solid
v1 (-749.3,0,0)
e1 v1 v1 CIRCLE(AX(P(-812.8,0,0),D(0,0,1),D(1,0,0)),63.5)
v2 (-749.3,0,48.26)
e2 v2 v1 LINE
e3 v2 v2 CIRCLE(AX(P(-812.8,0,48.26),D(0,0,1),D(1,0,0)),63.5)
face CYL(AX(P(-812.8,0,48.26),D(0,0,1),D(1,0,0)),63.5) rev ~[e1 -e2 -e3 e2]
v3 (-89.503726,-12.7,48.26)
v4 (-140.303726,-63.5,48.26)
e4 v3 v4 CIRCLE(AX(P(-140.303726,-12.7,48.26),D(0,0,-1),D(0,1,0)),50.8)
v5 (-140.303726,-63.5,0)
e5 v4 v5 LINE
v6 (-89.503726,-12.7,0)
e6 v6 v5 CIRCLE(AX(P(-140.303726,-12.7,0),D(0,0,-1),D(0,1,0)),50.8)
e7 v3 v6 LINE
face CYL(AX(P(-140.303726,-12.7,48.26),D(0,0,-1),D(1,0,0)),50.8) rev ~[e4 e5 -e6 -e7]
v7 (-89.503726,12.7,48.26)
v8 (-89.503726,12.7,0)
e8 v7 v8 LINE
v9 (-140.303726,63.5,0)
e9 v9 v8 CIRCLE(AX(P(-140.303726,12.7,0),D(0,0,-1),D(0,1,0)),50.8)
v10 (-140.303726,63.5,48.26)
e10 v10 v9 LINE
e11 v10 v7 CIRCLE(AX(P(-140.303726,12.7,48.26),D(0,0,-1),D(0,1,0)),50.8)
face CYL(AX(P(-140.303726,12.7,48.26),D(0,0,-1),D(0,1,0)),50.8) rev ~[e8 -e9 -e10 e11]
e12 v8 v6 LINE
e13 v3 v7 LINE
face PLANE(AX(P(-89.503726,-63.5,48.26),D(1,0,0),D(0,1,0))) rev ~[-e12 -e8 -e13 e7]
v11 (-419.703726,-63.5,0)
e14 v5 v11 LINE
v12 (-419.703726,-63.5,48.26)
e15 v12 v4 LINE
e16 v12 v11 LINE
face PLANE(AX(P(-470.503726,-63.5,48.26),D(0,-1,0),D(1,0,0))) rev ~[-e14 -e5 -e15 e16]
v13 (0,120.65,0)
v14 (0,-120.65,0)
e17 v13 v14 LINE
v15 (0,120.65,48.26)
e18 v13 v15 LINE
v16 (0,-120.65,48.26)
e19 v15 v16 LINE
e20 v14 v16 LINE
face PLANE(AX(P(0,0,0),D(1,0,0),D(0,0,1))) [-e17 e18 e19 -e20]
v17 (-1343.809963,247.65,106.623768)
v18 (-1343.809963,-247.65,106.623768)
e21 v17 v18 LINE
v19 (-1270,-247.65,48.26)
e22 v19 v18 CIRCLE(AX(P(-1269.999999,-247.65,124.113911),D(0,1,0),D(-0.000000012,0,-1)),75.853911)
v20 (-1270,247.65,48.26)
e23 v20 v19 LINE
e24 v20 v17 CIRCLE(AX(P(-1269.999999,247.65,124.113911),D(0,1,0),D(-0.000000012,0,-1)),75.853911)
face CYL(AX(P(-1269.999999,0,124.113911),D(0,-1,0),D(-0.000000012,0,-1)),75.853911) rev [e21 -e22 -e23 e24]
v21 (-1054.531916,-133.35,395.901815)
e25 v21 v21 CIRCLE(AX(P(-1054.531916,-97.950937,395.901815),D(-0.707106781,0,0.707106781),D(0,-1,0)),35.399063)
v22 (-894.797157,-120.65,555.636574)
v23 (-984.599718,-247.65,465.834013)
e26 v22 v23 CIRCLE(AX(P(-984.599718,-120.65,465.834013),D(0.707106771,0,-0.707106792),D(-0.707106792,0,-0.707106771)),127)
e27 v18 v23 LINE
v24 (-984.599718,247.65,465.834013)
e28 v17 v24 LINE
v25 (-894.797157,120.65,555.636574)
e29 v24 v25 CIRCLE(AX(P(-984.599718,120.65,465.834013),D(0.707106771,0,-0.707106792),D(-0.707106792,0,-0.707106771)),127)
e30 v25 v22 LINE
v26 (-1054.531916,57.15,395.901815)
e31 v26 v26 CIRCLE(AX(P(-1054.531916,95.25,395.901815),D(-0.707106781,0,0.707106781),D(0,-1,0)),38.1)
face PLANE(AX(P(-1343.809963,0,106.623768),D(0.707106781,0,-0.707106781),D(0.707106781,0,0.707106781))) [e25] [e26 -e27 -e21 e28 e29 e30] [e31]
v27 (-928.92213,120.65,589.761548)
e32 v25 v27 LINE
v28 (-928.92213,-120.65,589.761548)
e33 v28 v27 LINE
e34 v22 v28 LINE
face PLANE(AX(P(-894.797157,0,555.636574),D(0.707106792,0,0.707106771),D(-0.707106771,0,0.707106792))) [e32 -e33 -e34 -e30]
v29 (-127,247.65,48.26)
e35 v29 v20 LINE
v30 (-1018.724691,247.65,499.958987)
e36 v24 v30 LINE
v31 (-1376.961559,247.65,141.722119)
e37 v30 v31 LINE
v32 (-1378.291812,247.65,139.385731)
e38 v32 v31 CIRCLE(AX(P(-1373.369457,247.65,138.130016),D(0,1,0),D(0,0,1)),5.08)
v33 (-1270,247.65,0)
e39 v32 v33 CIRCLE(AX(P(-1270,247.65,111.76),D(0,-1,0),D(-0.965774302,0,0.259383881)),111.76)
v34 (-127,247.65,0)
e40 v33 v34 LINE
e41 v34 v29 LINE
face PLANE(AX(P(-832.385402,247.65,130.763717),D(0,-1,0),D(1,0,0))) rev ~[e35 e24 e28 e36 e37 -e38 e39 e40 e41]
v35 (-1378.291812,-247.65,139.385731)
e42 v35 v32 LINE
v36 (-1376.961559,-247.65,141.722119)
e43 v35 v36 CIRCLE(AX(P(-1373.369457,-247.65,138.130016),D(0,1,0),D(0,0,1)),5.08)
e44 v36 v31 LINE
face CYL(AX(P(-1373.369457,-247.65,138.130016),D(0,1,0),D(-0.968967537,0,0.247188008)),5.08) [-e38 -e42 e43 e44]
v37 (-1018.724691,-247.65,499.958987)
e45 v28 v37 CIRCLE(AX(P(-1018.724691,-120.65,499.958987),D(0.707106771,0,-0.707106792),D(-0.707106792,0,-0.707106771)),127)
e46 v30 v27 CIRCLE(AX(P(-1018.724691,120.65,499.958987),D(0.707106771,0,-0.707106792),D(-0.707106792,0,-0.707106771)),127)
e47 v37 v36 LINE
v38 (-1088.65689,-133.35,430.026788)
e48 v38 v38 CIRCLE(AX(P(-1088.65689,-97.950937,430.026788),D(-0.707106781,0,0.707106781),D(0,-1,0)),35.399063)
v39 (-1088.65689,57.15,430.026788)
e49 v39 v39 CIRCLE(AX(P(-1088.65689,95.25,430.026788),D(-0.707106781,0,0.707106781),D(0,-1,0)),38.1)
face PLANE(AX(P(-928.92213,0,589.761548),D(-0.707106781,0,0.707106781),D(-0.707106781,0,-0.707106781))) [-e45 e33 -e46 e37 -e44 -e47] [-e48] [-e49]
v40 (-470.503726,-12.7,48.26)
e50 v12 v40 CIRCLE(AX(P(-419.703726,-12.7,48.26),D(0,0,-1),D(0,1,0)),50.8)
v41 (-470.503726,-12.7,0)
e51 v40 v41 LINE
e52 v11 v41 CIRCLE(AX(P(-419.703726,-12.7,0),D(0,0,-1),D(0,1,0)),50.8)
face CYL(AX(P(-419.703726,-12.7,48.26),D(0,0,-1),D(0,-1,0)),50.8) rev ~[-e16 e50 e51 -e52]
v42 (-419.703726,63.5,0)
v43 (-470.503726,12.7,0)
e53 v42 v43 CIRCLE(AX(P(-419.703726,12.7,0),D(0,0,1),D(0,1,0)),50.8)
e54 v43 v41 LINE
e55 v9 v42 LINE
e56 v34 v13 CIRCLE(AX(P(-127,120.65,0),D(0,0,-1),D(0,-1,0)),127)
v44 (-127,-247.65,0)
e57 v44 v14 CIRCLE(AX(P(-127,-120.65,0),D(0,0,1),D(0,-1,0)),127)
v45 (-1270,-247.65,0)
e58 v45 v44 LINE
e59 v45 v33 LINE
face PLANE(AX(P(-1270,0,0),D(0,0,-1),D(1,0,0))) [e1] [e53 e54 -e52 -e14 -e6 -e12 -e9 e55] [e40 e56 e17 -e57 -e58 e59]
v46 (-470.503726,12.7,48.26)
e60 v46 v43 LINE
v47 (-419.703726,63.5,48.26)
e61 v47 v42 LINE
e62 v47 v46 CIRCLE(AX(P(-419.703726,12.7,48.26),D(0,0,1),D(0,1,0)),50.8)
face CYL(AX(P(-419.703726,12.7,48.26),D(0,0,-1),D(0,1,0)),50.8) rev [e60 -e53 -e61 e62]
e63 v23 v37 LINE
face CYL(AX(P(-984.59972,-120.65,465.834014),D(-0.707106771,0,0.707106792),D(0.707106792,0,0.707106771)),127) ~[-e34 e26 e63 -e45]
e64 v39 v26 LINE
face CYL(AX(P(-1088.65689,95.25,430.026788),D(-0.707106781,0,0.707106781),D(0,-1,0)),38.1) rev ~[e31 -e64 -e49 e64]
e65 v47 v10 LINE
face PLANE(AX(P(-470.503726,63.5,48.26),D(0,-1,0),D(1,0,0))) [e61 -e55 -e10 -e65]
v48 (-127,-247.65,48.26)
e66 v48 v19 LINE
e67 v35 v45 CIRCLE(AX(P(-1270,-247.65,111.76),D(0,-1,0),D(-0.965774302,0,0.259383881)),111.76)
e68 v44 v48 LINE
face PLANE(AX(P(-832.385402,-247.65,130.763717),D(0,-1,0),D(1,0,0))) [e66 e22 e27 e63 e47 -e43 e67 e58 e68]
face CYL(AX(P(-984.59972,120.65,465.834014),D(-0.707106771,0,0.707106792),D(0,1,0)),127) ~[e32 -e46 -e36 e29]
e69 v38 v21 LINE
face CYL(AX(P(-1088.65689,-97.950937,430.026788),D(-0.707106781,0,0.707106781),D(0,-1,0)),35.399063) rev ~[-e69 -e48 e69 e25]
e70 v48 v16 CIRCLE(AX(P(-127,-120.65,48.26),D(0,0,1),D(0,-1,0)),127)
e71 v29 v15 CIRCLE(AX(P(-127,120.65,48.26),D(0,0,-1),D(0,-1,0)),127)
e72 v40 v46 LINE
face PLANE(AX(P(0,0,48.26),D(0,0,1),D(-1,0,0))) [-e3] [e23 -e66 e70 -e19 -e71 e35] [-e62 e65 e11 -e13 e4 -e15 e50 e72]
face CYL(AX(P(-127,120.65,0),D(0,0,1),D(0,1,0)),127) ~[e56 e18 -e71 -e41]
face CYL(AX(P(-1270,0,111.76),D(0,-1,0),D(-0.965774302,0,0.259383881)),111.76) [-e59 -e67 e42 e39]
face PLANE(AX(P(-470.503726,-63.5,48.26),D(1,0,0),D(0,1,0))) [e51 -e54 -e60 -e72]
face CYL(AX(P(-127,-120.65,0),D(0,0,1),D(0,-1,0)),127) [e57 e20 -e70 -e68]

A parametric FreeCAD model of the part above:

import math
import FreeCAD as App
import Part
import Sketcher
from FreeCAD import Vector
Q = App.Units.Quantity


def edges_at(feature, points):
    """Names of the edges that pass closest to the given points."""
    edges = feature.Shape.Edges
    near = lambda p: min(range(len(edges)), key=lambda i: edges[i].distToShape(Part.Vertex(*p))[0])
    return sorted({f"Edge{near(p) + 1}" for p in points})

doc = App.newDocument("Part")
body = doc.addObject("PartDesign::Body", "Body")

sketch1 = body.newObject("Sketcher::SketchObject", "Sketch")
sketch1.AttachmentSupport = (doc.getObject("XZ_Plane"), [""])
sketch1.MapMode = "FlatFace"
sketch1.addGeometry(Part.LineSegment(Vector(-1270, 0, 0), Vector(0, 0, 0)), False)
sketch1.addGeometry(Part.LineSegment(Vector(0, 0, 0), Vector(0, 48, 0)), False)
sketch1.addGeometry(Part.LineSegment(Vector(0, 48, 0), Vector(-1270, 48, 0)), False)
sketch1.addGeometry(Part.ArcOfCircle(Part.Circle(Vector(-1270, 124, 0), Vector(0, 0, 1), 76), math.radians(-167), math.radians(-90)), False)
sketch1.addGeometry(Part.LineSegment(Vector(-1344, 107, 0), Vector(-895, 556, 0)), False)
sketch1.addGeometry(Part.LineSegment(Vector(-895, 556, 0), Vector(-929, 590, 0)), False)
sketch1.addGeometry(Part.LineSegment(Vector(-929, 590, 0), Vector(-1378, 141, 0)), False)
sketch1.addGeometry(Part.ArcOfCircle(Part.Circle(Vector(-1270, 112, 0), Vector(0, 0, 1), 112), math.radians(165), math.radians(270)), False)
sketch1.addConstraint(Sketcher.Constraint("Coincident", 0, 2, 1, 1))
sketch1.addConstraint(Sketcher.Constraint("Coincident", 1, 2, 2, 1))
sketch1.addConstraint(Sketcher.Constraint("Tangent", 2, 2, 3, 2))
sketch1.addConstraint(Sketcher.Constraint("Coincident", 3, 1, 4, 1))
sketch1.addConstraint(Sketcher.Constraint("Coincident", 4, 2, 5, 1))
sketch1.addConstraint(Sketcher.Constraint("Coincident", 5, 2, 6, 1))
sketch1.addConstraint(Sketcher.Constraint("Coincident", 6, 2, 7, 1))
sketch1.addConstraint(Sketcher.Constraint("Tangent", 7, 2, 0, 1))
sketch1.addConstraint(Sketcher.Constraint("Horizontal", 0))
sketch1.addConstraint(Sketcher.Constraint("Vertical", 1))
sketch1.addConstraint(Sketcher.Constraint("Horizontal", 2))
sketch1.addConstraint(Sketcher.Constraint("Coincident", 0, 2, -1, 1))
sketch1.addConstraint(Sketcher.Constraint("Perpendicular", 4, 5))
sketch1.addConstraint(Sketcher.Constraint("Perpendicular", 5, 6))
sketch1.addConstraint(Sketcher.Constraint("Vertical", 3, 3, 7, 3))
sketch1.addConstraint(Sketcher.Constraint("Equal", 4, 6))
sketch1.addConstraint(Sketcher.Constraint("Radius", 7, Q("4.4 in")))
sketch1.addConstraint(Sketcher.Constraint("DistanceX", 0, 1, 0, 2, Q("50 in")))
sketch1.addConstraint(Sketcher.Constraint("Distance", 4, Q("25 in")))
sketch1.addConstraint(Sketcher.Constraint("DistanceY", 1, 1, 1, 2, Q("1.9 in")))
sketch1.addConstraint(Sketcher.Constraint("Angle", 4, Q("45 deg")))
sketch1.addConstraint(Sketcher.Constraint("Distance", 5, Q("1.9 in")))
sketch1.addConstraint(Sketcher.Constraint("Radius", 3, 75.853911))
pad1 = body.newObject("PartDesign::Pad", "Pad")
pad1.Profile = sketch1
pad1.Length = Q("19.5 in")
pad1.Midplane = True
doc.recompute()

fillet = body.newObject("PartDesign::Fillet", "Fillet")
fillet.Base = (pad1, edges_at(pad1, [(-1377.935, 0, 140.749)]))
fillet.Radius = Q("0.2 in")

sketch2 = body.newObject("Sketcher::SketchObject", "Sketch001")
sketch2.Placement = App.Placement(Vector(-759.341839, 0, 759.341839), App.Rotation(Vector(0, -1, 0), Vector(0.707106781, 0, 0.707106781), Vector(-0.707106781, 0, 0.707106781), "ZXY"))
sketch2.addGeometry(Part.Circle(Vector(-95, -466, 0), Vector(0, 0, 1), 38), False)
sketch2.addGeometry(Part.Circle(Vector(98, -466, 0), Vector(0, 0, 1), 35), False)
sketch2.addConstraint(Sketcher.Constraint("Horizontal", 0, 3, 1, 3))
sketch2.addConstraint(Sketcher.Constraint("Diameter", 0, Q("3 in")))
sketch2.addConstraint(Sketcher.Constraint("DistanceX", 0, 3, -1, 1, Q("3.75 in")))
sketch2.addConstraint(Sketcher.Constraint("Diameter", 1, 70.798126))
sketch2.addConstraint(Sketcher.Constraint("DistanceY", 0, 3, -1, 1, 465.721811))
sketch2.addConstraint(Sketcher.Constraint("DistanceX", -1, 1, 1, 3, 97.950937))
pocket1 = body.newObject("PartDesign::Pocket", "Pocket")
pocket1.Profile = sketch2
pocket1.Length = Q("5 in")
doc.recompute()

fillet2 = body.newObject("PartDesign::Fillet", "Fillet001")
fillet2.Base = (pocket1, edges_at(pocket1, [(0, -247.65, 24.13), (0, 247.65, 24.13)]))
fillet2.Radius = Q("5 in")
doc.recompute()

fillet3 = body.newObject("PartDesign::Fillet", "Fillet002")
fillet3.Base = (fillet2, edges_at(fillet2, [(-911.86, -247.65, 572.699), (-911.86, 247.65, 572.699)]))
fillet3.Radius = Q("5 in")

sketch3 = body.newObject("Sketcher::SketchObject", "Sketch002")
sketch3.AttachmentSupport = (doc.getObject("XY_Plane"), [""])
sketch3.MapMode = "FlatFace"
sketch3.AttachmentOffset = App.Placement(Vector(0, 0, 1.9 * 25.4), App.Rotation())
sketch3.addGeometry(Part.Circle(Vector(-813, 0, 0), Vector(0, 0, 1), 64), False)
sketch3.addConstraint(Sketcher.Constraint("PointOnObject", 0, 3, -1))
sketch3.addConstraint(Sketcher.Constraint("Diameter", 0, Q("5 in")))
sketch3.addConstraint(Sketcher.Constraint("DistanceX", 0, 3, -1, 1, Q("32 in")))
pocket2 = body.newObject("PartDesign::Pocket", "Pocket001")
pocket2.Profile = sketch3
pocket2.Length = Q("5 in")

sketch4 = body.newObject("Sketcher::SketchObject", "Sketch003")
sketch4.AttachmentSupport = (doc.getObject("XY_Plane"), [""])
sketch4.MapMode = "FlatFace"
sketch4.AttachmentOffset = App.Placement(Vector(0, 0, 1.9 * 25.4), App.Rotation())
sketch4.addGeometry(Part.LineSegment(Vector(-471, 64, 0), Vector(-471, -64, 0)), False)
sketch4.addGeometry(Part.LineSegment(Vector(-471, -64, 0), Vector(-90, -64, 0)), False)
sketch4.addGeometry(Part.LineSegment(Vector(-90, -64, 0), Vector(-90, 64, 0)), False)
sketch4.addGeometry(Part.LineSegment(Vector(-90, 64, 0), Vector(-471, 64, 0)), False)
sketch4.addConstraint(Sketcher.Constraint("Coincident", 0, 2, 1, 1))
sketch4.addConstraint(Sketcher.Constraint("Coincident", 1, 2, 2, 1))
sketch4.addConstraint(Sketcher.Constraint("Coincident", 2, 2, 3, 1))
sketch4.addConstraint(Sketcher.Constraint("Coincident", 3, 2, 0, 1))
sketch4.addConstraint(Sketcher.Constraint("Vertical", 0))
sketch4.addConstraint(Sketcher.Constraint("Horizontal", 1))
sketch4.addConstraint(Sketcher.Constraint("Vertical", 2))
sketch4.addConstraint(Sketcher.Constraint("Horizontal", 3))
sketch4.addConstraint(Sketcher.Constraint("DistanceX", 1, 1, 1, 2, Q("15 in")))
sketch4.addConstraint(Sketcher.Constraint("DistanceY", 0, 2, 0, 1, Q("5 in")))
sketch4.addConstraint(Sketcher.Constraint("DistanceY", 0, 2, -1, 1, Q("2.5 in")))
sketch4.addConstraint(Sketcher.Constraint("DistanceX", 0, 2, -1, 1, 470.503726))
pocket3 = body.newObject("PartDesign::Pocket", "Pocket002")
pocket3.Profile = sketch4
pocket3.Length = Q("5 in")
doc.recompute()

fillet4 = body.newObject("PartDesign::Fillet", "Fillet003")
fillet4.Base = (pocket3, edges_at(pocket3, [
    (-470.504, 63.5, 24.13),
    (-470.504, -63.5, 24.13),
    (-89.504, 63.5, 24.13),
    (-89.504, -63.5, 24.13),
]))
fillet4.Radius = Q("2 in")

doc.recompute()
